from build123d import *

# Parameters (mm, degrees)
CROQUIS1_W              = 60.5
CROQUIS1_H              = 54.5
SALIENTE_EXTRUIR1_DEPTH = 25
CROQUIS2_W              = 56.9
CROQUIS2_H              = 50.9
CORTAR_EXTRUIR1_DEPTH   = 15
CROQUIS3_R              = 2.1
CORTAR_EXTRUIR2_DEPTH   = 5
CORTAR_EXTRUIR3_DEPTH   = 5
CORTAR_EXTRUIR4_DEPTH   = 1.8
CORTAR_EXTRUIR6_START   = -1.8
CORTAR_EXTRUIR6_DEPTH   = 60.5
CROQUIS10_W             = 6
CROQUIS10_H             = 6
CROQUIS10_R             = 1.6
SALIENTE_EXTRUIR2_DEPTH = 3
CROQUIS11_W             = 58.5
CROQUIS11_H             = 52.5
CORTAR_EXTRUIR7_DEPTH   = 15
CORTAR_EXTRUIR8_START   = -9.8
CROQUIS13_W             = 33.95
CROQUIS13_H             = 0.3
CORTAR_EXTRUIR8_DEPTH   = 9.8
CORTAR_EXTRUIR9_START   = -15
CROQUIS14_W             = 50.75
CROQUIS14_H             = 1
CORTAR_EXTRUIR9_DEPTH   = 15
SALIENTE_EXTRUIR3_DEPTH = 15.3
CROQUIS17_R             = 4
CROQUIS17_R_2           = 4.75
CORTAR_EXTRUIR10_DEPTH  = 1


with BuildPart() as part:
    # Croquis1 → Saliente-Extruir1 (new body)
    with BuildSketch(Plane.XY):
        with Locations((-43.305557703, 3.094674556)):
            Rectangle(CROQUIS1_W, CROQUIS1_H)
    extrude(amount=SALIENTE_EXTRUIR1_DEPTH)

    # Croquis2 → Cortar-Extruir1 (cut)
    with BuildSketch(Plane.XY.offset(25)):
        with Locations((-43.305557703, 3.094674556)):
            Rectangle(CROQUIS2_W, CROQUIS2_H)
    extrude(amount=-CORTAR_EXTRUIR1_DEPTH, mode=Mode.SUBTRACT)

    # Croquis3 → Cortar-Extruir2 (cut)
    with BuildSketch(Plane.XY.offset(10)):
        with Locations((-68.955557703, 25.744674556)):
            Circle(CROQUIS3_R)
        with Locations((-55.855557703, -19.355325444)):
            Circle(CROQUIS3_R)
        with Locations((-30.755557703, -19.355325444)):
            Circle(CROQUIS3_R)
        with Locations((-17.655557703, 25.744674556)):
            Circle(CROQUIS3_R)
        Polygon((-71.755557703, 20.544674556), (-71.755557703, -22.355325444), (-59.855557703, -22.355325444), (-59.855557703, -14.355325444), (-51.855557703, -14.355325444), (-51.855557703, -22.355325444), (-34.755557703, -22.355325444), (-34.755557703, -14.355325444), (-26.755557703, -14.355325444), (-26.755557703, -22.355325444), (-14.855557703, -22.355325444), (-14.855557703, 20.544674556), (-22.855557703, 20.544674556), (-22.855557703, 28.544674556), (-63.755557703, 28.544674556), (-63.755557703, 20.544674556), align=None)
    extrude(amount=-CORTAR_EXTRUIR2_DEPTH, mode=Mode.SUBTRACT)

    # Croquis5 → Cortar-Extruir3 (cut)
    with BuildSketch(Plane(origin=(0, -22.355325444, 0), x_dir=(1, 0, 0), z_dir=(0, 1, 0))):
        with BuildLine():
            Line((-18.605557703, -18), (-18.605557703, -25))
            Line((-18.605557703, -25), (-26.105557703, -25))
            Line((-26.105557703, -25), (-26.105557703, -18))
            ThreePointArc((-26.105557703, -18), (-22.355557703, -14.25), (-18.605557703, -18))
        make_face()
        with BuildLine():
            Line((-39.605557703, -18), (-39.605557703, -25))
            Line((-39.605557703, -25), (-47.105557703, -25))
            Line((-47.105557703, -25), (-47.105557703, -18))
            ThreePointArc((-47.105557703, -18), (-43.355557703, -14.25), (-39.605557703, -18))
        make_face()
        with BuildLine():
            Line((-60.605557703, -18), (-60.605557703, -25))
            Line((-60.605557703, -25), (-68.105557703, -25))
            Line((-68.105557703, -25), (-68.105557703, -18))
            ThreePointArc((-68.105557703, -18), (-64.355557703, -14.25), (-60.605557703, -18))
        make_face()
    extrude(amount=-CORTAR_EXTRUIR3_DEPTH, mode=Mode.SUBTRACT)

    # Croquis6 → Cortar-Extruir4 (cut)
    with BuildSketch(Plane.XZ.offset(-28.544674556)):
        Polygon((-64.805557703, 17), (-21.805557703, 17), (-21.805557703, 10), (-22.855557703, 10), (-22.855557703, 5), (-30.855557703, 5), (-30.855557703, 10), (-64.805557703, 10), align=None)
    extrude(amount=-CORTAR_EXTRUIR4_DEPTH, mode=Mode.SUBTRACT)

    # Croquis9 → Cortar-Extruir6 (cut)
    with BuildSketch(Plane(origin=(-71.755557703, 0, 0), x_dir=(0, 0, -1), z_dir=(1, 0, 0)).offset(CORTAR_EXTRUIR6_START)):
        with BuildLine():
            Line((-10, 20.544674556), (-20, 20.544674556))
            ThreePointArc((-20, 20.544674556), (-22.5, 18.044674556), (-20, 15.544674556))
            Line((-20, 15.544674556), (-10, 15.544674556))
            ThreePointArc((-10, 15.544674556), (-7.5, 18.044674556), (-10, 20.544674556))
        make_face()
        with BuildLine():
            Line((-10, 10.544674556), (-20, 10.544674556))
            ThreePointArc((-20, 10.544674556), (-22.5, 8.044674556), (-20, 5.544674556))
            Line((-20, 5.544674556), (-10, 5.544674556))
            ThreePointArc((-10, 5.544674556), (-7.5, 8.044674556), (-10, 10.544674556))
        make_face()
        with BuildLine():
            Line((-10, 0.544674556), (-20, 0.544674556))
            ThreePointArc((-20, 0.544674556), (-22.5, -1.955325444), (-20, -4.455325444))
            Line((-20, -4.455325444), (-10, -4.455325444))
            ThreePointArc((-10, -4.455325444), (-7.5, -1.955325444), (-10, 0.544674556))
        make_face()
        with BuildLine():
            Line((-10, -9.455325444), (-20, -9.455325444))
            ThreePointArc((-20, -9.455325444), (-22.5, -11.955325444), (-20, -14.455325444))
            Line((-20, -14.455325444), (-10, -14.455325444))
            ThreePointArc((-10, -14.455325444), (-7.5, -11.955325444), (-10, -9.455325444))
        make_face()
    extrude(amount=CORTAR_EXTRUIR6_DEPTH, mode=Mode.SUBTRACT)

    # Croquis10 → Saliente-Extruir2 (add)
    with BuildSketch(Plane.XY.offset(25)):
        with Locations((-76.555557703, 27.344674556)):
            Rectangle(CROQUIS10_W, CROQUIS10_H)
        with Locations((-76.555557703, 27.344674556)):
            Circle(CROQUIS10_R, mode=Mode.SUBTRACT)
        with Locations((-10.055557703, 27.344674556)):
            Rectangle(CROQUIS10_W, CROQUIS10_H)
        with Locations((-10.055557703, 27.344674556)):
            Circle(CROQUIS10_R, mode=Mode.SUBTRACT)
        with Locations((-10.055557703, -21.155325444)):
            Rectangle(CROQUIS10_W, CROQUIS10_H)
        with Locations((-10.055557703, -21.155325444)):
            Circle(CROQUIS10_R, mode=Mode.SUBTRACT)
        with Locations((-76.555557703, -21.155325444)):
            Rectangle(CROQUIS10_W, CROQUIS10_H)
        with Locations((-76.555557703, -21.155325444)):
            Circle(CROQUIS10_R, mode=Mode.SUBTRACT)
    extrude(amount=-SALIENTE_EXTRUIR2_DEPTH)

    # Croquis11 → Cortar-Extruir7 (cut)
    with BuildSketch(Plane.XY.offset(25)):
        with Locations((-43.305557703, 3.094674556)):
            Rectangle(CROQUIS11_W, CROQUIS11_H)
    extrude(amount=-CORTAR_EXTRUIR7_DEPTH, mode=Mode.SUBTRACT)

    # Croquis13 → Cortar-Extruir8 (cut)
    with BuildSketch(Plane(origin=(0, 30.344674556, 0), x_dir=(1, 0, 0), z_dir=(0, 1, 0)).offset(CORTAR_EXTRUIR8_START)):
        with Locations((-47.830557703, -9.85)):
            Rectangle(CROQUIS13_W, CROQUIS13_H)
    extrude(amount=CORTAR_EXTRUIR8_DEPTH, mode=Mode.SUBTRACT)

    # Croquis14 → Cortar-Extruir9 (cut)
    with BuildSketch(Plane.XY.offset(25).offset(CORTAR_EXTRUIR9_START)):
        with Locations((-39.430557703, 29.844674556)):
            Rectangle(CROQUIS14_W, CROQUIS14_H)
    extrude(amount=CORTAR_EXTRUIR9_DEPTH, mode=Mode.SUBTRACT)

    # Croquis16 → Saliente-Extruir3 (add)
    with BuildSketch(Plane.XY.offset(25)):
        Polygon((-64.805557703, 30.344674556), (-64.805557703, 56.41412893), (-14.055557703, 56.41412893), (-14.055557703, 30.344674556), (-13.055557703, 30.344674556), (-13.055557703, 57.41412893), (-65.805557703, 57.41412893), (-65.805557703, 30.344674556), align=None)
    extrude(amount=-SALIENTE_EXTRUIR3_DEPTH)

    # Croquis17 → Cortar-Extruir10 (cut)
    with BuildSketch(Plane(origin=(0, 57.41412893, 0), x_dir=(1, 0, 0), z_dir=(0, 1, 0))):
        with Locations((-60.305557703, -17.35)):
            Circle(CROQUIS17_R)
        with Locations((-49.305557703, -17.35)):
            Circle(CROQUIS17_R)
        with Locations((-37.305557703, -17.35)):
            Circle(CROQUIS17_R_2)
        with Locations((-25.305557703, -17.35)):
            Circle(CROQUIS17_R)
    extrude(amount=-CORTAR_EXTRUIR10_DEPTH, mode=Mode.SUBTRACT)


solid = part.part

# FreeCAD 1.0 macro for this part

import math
import FreeCAD as App
import Part
import Sketcher

doc = App.newDocument("Part")
body = doc.addObject("PartDesign::Body", "Body")

sketch1 = body.newObject("Sketcher::SketchObject", "Sketch")
sketch1.AttachmentSupport = (doc.getObject("XY_Plane"), [""])
sketch1.MapMode = "FlatFace"
sketch1.addGeometry([
    Part.LineSegment(App.Vector(-74, 30, 0), App.Vector(-74, -24, 0)),
    Part.LineSegment(App.Vector(-74, -24, 0), App.Vector(-13, -24, 0)),
    Part.LineSegment(App.Vector(-13, -24, 0), App.Vector(-13, 30, 0)),
    Part.LineSegment(App.Vector(-13, 30, 0), App.Vector(-74, 30, 0)),
], False)
sketch1.addConstraint([
    Sketcher.Constraint("Coincident", 0, 2, 1, 1),
    Sketcher.Constraint("Coincident", 1, 2, 2, 1),
    Sketcher.Constraint("Coincident", 2, 2, 3, 1),
    Sketcher.Constraint("Coincident", 3, 2, 0, 1),
    Sketcher.Constraint("Vertical", 0),
    Sketcher.Constraint("Horizontal", 1),
    Sketcher.Constraint("Vertical", 2),
    Sketcher.Constraint("Horizontal", 3),
    Sketcher.Constraint("DistanceX", 1, 1, 1, 2, 60.5),
    Sketcher.Constraint("DistanceY", 0, 2, 0, 1, 54.5),
    Sketcher.Constraint("DistanceX", 0, 2, -1, 1, 73.555558),
    Sketcher.Constraint("DistanceY", 0, 2, -1, 1, 24.155325),
])
pad1 = body.newObject("PartDesign::Pad", "Pad")
pad1.Profile = sketch1
pad1.Length = 25

sketch2 = body.newObject("Sketcher::SketchObject", "Sketch001")
sketch2.AttachmentSupport = (doc.getObject("XY_Plane"), [""])
sketch2.MapMode = "FlatFace"
sketch2.AttachmentOffset = App.Placement(App.Vector(0, 0, 25), App.Rotation())
sketch2.addGeometry([
    Part.LineSegment(App.Vector(-72, 29, 0), App.Vector(-72, -22, 0)),
    Part.LineSegment(App.Vector(-72, -22, 0), App.Vector(-15, -22, 0)),
    Part.LineSegment(App.Vector(-15, -22, 0), App.Vector(-15, 29, 0)),
    Part.LineSegment(App.Vector(-15, 29, 0), App.Vector(-72, 29, 0)),
], False)
sketch2.addConstraint([
    Sketcher.Constraint("Coincident", 0, 2, 1, 1),
    Sketcher.Constraint("Coincident", 1, 2, 2, 1),
    Sketcher.Constraint("Coincident", 2, 2, 3, 1),
    Sketcher.Constraint("Coincident", 3, 2, 0, 1),
    Sketcher.Constraint("Vertical", 0),
    Sketcher.Constraint("Horizontal", 1),
    Sketcher.Constraint("Vertical", 2),
    Sketcher.Constraint("Horizontal", 3),
    Sketcher.Constraint("DistanceX", 1, 1, 1, 2, 56.9),
    Sketcher.Constraint("DistanceY", 0, 2, 0, 1, 50.9),
    Sketcher.Constraint("DistanceX", 0, 2, -1, 1, 71.755558),
    Sketcher.Constraint("DistanceY", 0, 2, -1, 1, 22.355325),
])
pocket1 = body.newObject("PartDesign::Pocket", "Pocket")
pocket1.Profile = sketch2
pocket1.Length = 15

sketch3 = body.newObject("Sketcher::SketchObject", "Sketch002")
sketch3.AttachmentSupport = (doc.getObject("XY_Plane"), [""])
sketch3.MapMode = "FlatFace"
sketch3.AttachmentOffset = App.Placement(App.Vector(0, 0, 10), App.Rotation())
sketch3.addGeometry([
    Part.Circle(App.Vector(-69, 25.7, 0), App.Vector(0, 0, 1), 2.1),
    Part.Circle(App.Vector(-55.9, -19.4, 0), App.Vector(0, 0, 1), 2.1),
    Part.Circle(App.Vector(-30.8, -19.4, 0), App.Vector(0, 0, 1), 2.1),
    Part.Circle(App.Vector(-17.7, 25.7, 0), App.Vector(0, 0, 1), 2.1),
    Part.LineSegment(App.Vector(-71.8, 20.5, 0), App.Vector(-71.8, -22.4, 0)),
    Part.LineSegment(App.Vector(-71.8, -22.4, 0), App.Vector(-59.9, -22.4, 0)),
    Part.LineSegment(App.Vector(-59.9, -22.4, 0), App.Vector(-59.9, -14.4, 0)),
    Part.LineSegment(App.Vector(-59.9, -14.4, 0), App.Vector(-51.9, -14.4, 0)),
    Part.LineSegment(App.Vector(-51.9, -14.4, 0), App.Vector(-51.9, -22.4, 0)),
    Part.LineSegment(App.Vector(-51.9, -22.4, 0), App.Vector(-34.8, -22.4, 0)),
    Part.LineSegment(App.Vector(-34.8, -22.4, 0), App.Vector(-34.8, -14.4, 0)),
    Part.LineSegment(App.Vector(-34.8, -14.4, 0), App.Vector(-26.8, -14.4, 0)),
    Part.LineSegment(App.Vector(-26.8, -14.4, 0), App.Vector(-26.8, -22.4, 0)),
    Part.LineSegment(App.Vector(-26.8, -22.4, 0), App.Vector(-14.9, -22.4, 0)),
    Part.LineSegment(App.Vector(-14.9, -22.4, 0), App.Vector(-14.9, 20.5, 0)),
    Part.LineSegment(App.Vector(-14.9, 20.5, 0), App.Vector(-22.9, 20.5, 0)),
    Part.LineSegment(App.Vector(-22.9, 20.5, 0), App.Vector(-22.9, 28.5, 0)),
    Part.LineSegment(App.Vector(-22.9, 28.5, 0), App.Vector(-63.8, 28.5, 0)),
    Part.LineSegment(App.Vector(-63.8, 28.5, 0), App.Vector(-63.8, 20.5, 0)),
    Part.LineSegment(App.Vector(-63.8, 20.5, 0), App.Vector(-71.8, 20.5, 0)),
], False)
sketch3.addConstraint([
    Sketcher.Constraint("Coincident", 4, 2, 5, 1),
    Sketcher.Constraint("Coincident", 5, 2, 6, 1),
    Sketcher.Constraint("Coincident", 6, 2, 7, 1),
    Sketcher.Constraint("Coincident", 7, 2, 8, 1),
    Sketcher.Constraint("Coincident", 8, 2, 9, 1),
    Sketcher.Constraint("Coincident", 9, 2, 10, 1),
    Sketcher.Constraint("Coincident", 10, 2, 11, 1),
    Sketcher.Constraint("Coincident", 11, 2, 12, 1),
    Sketcher.Constraint("Coincident", 12, 2, 13, 1),
    Sketcher.Constraint("Coincident", 13, 2, 14, 1),
    Sketcher.Constraint("Coincident", 14, 2, 15, 1),
    Sketcher.Constraint("Coincident", 15, 2, 16, 1),
    Sketcher.Constraint("Coincident", 16, 2, 17, 1),
    Sketcher.Constraint("Coincident", 17, 2, 18, 1),
    Sketcher.Constraint("Coincident", 18, 2, 19, 1),
    Sketcher.Constraint("Coincident", 19, 2, 4, 1),
    Sketcher.Constraint("Vertical", 4),
    Sketcher.Constraint("Horizontal", 5),
    Sketcher.Constraint("Vertical", 6),
    Sketcher.Constraint("Horizontal", 7),
    Sketcher.Constraint("Vertical", 8),
    Sketcher.Constraint("Horizontal", 9),
    Sketcher.Constraint("Vertical", 10),
    Sketcher.Constraint("Horizontal", 11),
    Sketcher.Constraint("Vertical", 12),
    Sketcher.Constraint("Horizontal", 13),
    Sketcher.Constraint("Vertical", 14),
    Sketcher.Constraint("Horizontal", 15),
    Sketcher.Constraint("Vertical", 16),
    Sketcher.Constraint("Horizontal", 17),
    Sketcher.Constraint("Vertical", 18),
    Sketcher.Constraint("Horizontal", 19),
    Sketcher.Constraint("Equal", 0, 1),
    Sketcher.Constraint("Equal", 1, 2),
    Sketcher.Constraint("Equal", 2, 3),
    Sketcher.Constraint("Horizontal", 1, 3, 2, 3),
    Sketcher.Constraint("Horizontal", 0, 3, 3, 3),
    Sketcher.Constraint("Horizontal", 5, 2, 8, 2),
    Sketcher.Constraint("Horizontal", 7, 2, 10, 2),
    Sketcher.Constraint("Horizontal", 9, 2, 12, 2),
    Sketcher.Constraint("Horizontal", 15, 2, 18, 2),
    Sketcher.Constraint("Equal", 7, 11),
    Sketcher.Constraint("Equal", 5, 13),
    Sketcher.Constraint("Equal", 11, 15),
    Sketcher.Constraint("Equal", 15, 19),
    Sketcher.Constraint("Equal", 19, 6),
    Sketcher.Constraint("Equal", 12, 16),
    Sketcher.Constraint("Diameter", 0, 4.2),
    Sketcher.Constraint("DistanceX", 7, 1, 7, 2, 8.0),
    Sketcher.Constraint("DistanceX", 5, 1, 5, 2, 11.9),
    Sketcher.Constraint("DistanceX", 9, 1, 9, 2, 17.1),
    Sketcher.Constraint("DistanceY", 4, 2, 4, 1, 42.9),
    Sketcher.Constraint("DistanceY", 4, 2, 1, 3, 3.0),
    Sketcher.Constraint("DistanceX", 4, 2, 2, 3, 41.0),
    Sketcher.Constraint("DistanceX", 5, 2, 1, 3, 4.0),
    Sketcher.Constraint("DistanceX", 0, 3, 1, 3, 13.1),
    Sketcher.Constraint("DistanceY", 1, 3, 0, 3, 45.1),
    Sketcher.Constraint("DistanceX", 2, 3, 3, 3, 13.1),
    Sketcher.Constraint("DistanceX", 0, 3, -1, 1, 68.955558),
    Sketcher.Constraint("DistanceY", -1, 1, 0, 3, 25.744675),
])
pocket2 = body.newObject("PartDesign::Pocket", "Pocket001")
pocket2.Profile = sketch3
pocket2.Length = 5

sketch4 = body.newObject("Sketcher::SketchObject", "Sketch003")
sketch4.AttachmentSupport = (doc.getObject("XZ_Plane"), [""])
sketch4.MapMode = "FlatFace"
sketch4.AttachmentOffset = App.Placement(App.Vector(0, 0, 22.355325), App.Rotation())
sketch4.addGeometry([
    Part.LineSegment(App.Vector(-18.6, 25, 0), App.Vector(-18.6, 18, 0)),
    Part.ArcOfCircle(Part.Circle(App.Vector(-22.4, 18, 0), App.Vector(0, 0, 1), 3.8), math.radians(180), math.radians(360)),
    Part.LineSegment(App.Vector(-26.1, 18, 0), App.Vector(-26.1, 25, 0)),
    Part.LineSegment(App.Vector(-26.1, 25, 0), App.Vector(-18.6, 25, 0)),
    Part.LineSegment(App.Vector(-39.6, 25, 0), App.Vector(-39.6, 18, 0)),
    Part.ArcOfCircle(Part.Circle(App.Vector(-43.4, 18, 0), App.Vector(0, 0, 1), 3.8), math.radians(180), math.radians(360)),
    Part.LineSegment(App.Vector(-47.1, 18, 0), App.Vector(-47.1, 25, 0)),
    Part.LineSegment(App.Vector(-47.1, 25, 0), App.Vector(-39.6, 25, 0)),
    Part.LineSegment(App.Vector(-60.6, 25, 0), App.Vector(-60.6, 18, 0)),
    Part.ArcOfCircle(Part.Circle(App.Vector(-64.4, 18, 0), App.Vector(0, 0, 1), 3.8), math.radians(180), math.radians(360)),
    Part.LineSegment(App.Vector(-68.1, 18, 0), App.Vector(-68.1, 25, 0)),
    Part.LineSegment(App.Vector(-68.1, 25, 0), App.Vector(-60.6, 25, 0)),
], False)
sketch4.addConstraint([
    Sketcher.Constraint("Tangent", 0, 2, 1, 2),
    Sketcher.Constraint("Tangent", 1, 1, 2, 1),
    Sketcher.Constraint("Coincident", 2, 2, 3, 1),
    Sketcher.Constraint("Coincident", 3, 2, 0, 1),
    Sketcher.Constraint("Tangent", 4, 2, 5, 2),
    Sketcher.Constraint("Tangent", 5, 1, 6, 1),
    Sketcher.Constraint("Coincident", 6, 2, 7, 1),
    Sketcher.Constraint("Coincident", 7, 2, 4, 1),
    Sketcher.Constraint("Tangent", 8, 2, 9, 2),
    Sketcher.Constraint("Tangent", 9, 1, 10, 1),
    Sketcher.Constraint("Coincident", 10, 2, 11, 1),
    Sketcher.Constraint("Coincident", 11, 2, 8, 1),
    Sketcher.Constraint("Vertical", 0),
    Sketcher.Constraint("Vertical", 2),
    Sketcher.Constraint("Horizontal", 3),
    Sketcher.Constraint("Vertical", 4),
    Sketcher.Constraint("Vertical", 6),
    Sketcher.Constraint("Horizontal", 7),
    Sketcher.Constraint("Vertical", 8),
    Sketcher.Constraint("Vertical", 10),
    Sketcher.Constraint("Horizontal", 11),
    Sketcher.Constraint("Equal", 1, 5),
    Sketcher.Constraint("Equal", 5, 9),
    Sketcher.Constraint("Horizontal", 1, 3, 5, 3),
    Sketcher.Constraint("Horizontal", 5, 3, 9, 3),
    Sketcher.Constraint("Horizontal", 3, 2, 6, 2),
    Sketcher.Constraint("Horizontal", 7, 2, 10, 2),
    Sketcher.Constraint("DistanceY", 0, 2, 0, 1, 7.0),
    Sketcher.Constraint("Radius", 1, 3.75),
    Sketcher.Constraint("DistanceY", -1, 1, 1, 3, 18.0),
    Sketcher.Constraint("DistanceX", 5, 3, 1, 3, 21.0),
    Sketcher.Constraint("DistanceX", 9, 3, 5, 3, 21.0),
    Sketcher.Constraint("DistanceX", 1, 3, -1, 1, 22.355558),
])
pocket3 = body.newObject("PartDesign::Pocket", "Pocket002")
pocket3.Profile = sketch4
pocket3.Length = 5
pocket3.Reversed = True

sketch5 = body.newObject("Sketcher::SketchObject", "Sketch004")
sketch5.AttachmentSupport = (doc.getObject("XZ_Plane"), [""])
sketch5.MapMode = "FlatFace"
sketch5.AttachmentOffset = App.Placement(App.Vector(0, 0, -28.544675), App.Rotation())
sketch5.addGeometry([
    Part.LineSegment(App.Vector(-21.8, 17, 0), App.Vector(-64.8, 17, 0)),
    Part.LineSegment(App.Vector(-64.8, 17, 0), App.Vector(-64.8, 10, 0)),
    Part.LineSegment(App.Vector(-64.8, 10, 0), App.Vector(-30.9, 10, 0)),
    Part.LineSegment(App.Vector(-30.9, 10, 0), App.Vector(-30.9, 5, 0)),
    Part.LineSegment(App.Vector(-30.9, 5, 0), App.Vector(-22.9, 5, 0)),
    Part.LineSegment(App.Vector(-22.9, 5, 0), App.Vector(-22.9, 10, 0)),
    Part.LineSegment(App.Vector(-22.9, 10, 0), App.Vector(-21.8, 10, 0)),
    Part.LineSegment(App.Vector(-21.8, 10, 0), App.Vector(-21.8, 17, 0)),
], False)
sketch5.addConstraint([
    Sketcher.Constraint("Coincident", 0, 2, 1, 1),
    Sketcher.Constraint("Coincident", 1, 2, 2, 1),
    Sketcher.Constraint("Coincident", 2, 2, 3, 1),
    Sketcher.Constraint("Coincident", 3, 2, 4, 1),
    Sketcher.Constraint("Coincident", 4, 2, 5, 1),
    Sketcher.Constraint("Coincident", 5, 2, 6, 1),
    Sketcher.Constraint("Coincident", 6, 2, 7, 1),
    Sketcher.Constraint("Coincident", 7, 2, 0, 1),
    Sketcher.Constraint("Horizontal", 0),
    Sketcher.Constraint("Vertical", 1),
    Sketcher.Constraint("Horizontal", 2),
    Sketcher.Constraint("Vertical", 3),
    Sketcher.Constraint("Horizontal", 4),
    Sketcher.Constraint("Vertical", 5),
    Sketcher.Constraint("Horizontal", 6),
    Sketcher.Constraint("Vertical", 7),
    Sketcher.Constraint("Horizontal", 2, 2, 5, 2),
    Sketcher.Constraint("DistanceX", 0, 2, 0, 1, 43.0),
    Sketcher.Constraint("DistanceX", 4, 1, 4, 2, 8.0),
    Sketcher.Constraint("DistanceY", 1, 2, 1, 1, 7.0),
    Sketcher.Constraint("DistanceY", 3, 2, 3, 1, 5.0),
    Sketcher.Constraint("DistanceY", -1, 1, 0, 2, 17.0),
    Sketcher.Constraint("DistanceX", 2, 1, 2, 2, 33.95),
    Sketcher.Constraint("DistanceX", 0, 2, -1, 1, 64.805558),
])
pocket4 = body.newObject("PartDesign::Pocket", "Pocket003")
pocket4.Profile = sketch5
pocket4.Length = 1.8

sketch6 = body.newObject("Sketcher::SketchObject", "Sketch005")
sketch6.AttachmentSupport = (doc.getObject("YZ_Plane"), [""])
sketch6.MapMode = "FlatFace"
sketch6.AttachmentOffset = App.Placement(App.Vector(0, 0, -73.555558), App.Rotation())
sketch6.addGeometry([
    Part.LineSegment(App.Vector(20.5, 10, 0), App.Vector(20.5, 20, 0)),
    Part.ArcOfCircle(Part.Circle(App.Vector(18, 20, 0), App.Vector(0, 0, 1), 2.5), math.radians(0), math.radians(180)),
    Part.LineSegment(App.Vector(15.5, 20, 0), App.Vector(15.5, 10, 0)),
    Part.ArcOfCircle(Part.Circle(App.Vector(18, 10, 0), App.Vector(0, 0, 1), 2.5), math.radians(180), math.radians(360)),
    Part.LineSegment(App.Vector(10.5, 10, 0), App.Vector(10.5, 20, 0)),
    Part.ArcOfCircle(Part.Circle(App.Vector(8, 20, 0), App.Vector(0, 0, 1), 2.5), math.radians(0), math.radians(180)),
    Part.LineSegment(App.Vector(5.5, 20, 0), App.Vector(5.5, 10, 0)),
    Part.ArcOfCircle(Part.Circle(App.Vector(8, 10, 0), App.Vector(0, 0, 1), 2.5), math.radians(180), math.radians(360)),
    Part.LineSegment(App.Vector(0.5, 10, 0), App.Vector(0.5, 20, 0)),
    Part.ArcOfCircle(Part.Circle(App.Vector(-2, 20, 0), App.Vector(0, 0, 1), 2.5), math.radians(0), math.radians(180)),
    Part.LineSegment(App.Vector(-4.5, 20, 0), App.Vector(-4.5, 10, 0)),
    Part.ArcOfCircle(Part.Circle(App.Vector(-2, 10, 0), App.Vector(0, 0, 1), 2.5), math.radians(180), math.radians(360)),
    Part.LineSegment(App.Vector(-9.5, 10, 0), App.Vector(-9.5, 20, 0)),
    Part.ArcOfCircle(Part.Circle(App.Vector(-12, 20, 0), App.Vector(0, 0, 1), 2.5), math.radians(0), math.radians(180)),
    Part.LineSegment(App.Vector(-14.5, 20, 0), App.Vector(-14.5, 10, 0)),
    Part.ArcOfCircle(Part.Circle(App.Vector(-12, 10, 0), App.Vector(0, 0, 1), 2.5), math.radians(180), math.radians(360)),
], False)
sketch6.addConstraint([
    Sketcher.Constraint("Tangent", 0, 2, 1, 1),
    Sketcher.Constraint("Tangent", 1, 2, 2, 1),
    Sketcher.Constraint("Tangent", 2, 2, 3, 1),
    Sketcher.Constraint("Tangent", 3, 2, 0, 1),
    Sketcher.Constraint("Tangent", 4, 2, 5, 1),
    Sketcher.Constraint("Tangent", 5, 2, 6, 1),
    Sketcher.Constraint("Tangent", 6, 2, 7, 1),
    Sketcher.Constraint("Tangent", 7, 2, 4, 1),
    Sketcher.Constraint("Tangent", 8, 2, 9, 1),
    Sketcher.Constraint("Tangent", 9, 2, 10, 1),
    Sketcher.Constraint("Tangent", 10, 2, 11, 1),
    Sketcher.Constraint("Tangent", 11, 2, 8, 1),
    Sketcher.Constraint("Tangent", 12, 2, 13, 1),
    Sketcher.Constraint("Tangent", 13, 2, 14, 1),
    Sketcher.Constraint("Tangent", 14, 2, 15, 1),
    Sketcher.Constraint("Tangent", 15, 2, 12, 1),
    Sketcher.Constraint("Vertical", 0),
    Sketcher.Constraint("Vertical", 2),
    Sketcher.Constraint("Vertical", 4),
    Sketcher.Constraint("Vertical", 6),
    Sketcher.Constraint("Vertical", 8),
    Sketcher.Constraint("Vertical", 10),
    Sketcher.Constraint("Vertical", 12),
    Sketcher.Constraint("Vertical", 14),
    Sketcher.Constraint("Equal", 3, 5),
    Sketcher.Constraint("Equal", 7, 9),
    Sketcher.Constraint("Equal", 11, 13),
    Sketcher.Constraint("Horizontal", 1, 3, 5, 3),
    Sketcher.Constraint("Horizontal", 3, 3, 7, 3),
    Sketcher.Constraint("Horizontal", 5, 3, 9, 3),
    Sketcher.Constraint("Horizontal", 7, 3, 11, 3),
    Sketcher.Constraint("Horizontal", 9, 3, 13, 3),
    Sketcher.Constraint("Horizontal", 11, 3, 15, 3),
    Sketcher.Constraint("Radius", 1, 2.5),
    Sketcher.Constraint("DistanceY", 0, 1, 0, 2, 10.0),
    Sketcher.Constraint("DistanceY", -1, 1, 1, 3, 20.0),
    Sketcher.Constraint("DistanceX", 5, 3, 1, 3, 10.0),
    Sketcher.Constraint("DistanceX", 9, 3, 5, 3, 10.0),
    Sketcher.Constraint("DistanceX", 13, 3, 9, 3, 10.0),
    Sketcher.Constraint("DistanceX", -1, 1, 1, 3, 18.044675),
])
pocket5 = body.newObject("PartDesign::Pocket", "Pocket004")
pocket5.Profile = sketch6
pocket5.Length = 60.5
pocket5.Reversed = True

sketch7 = body.newObject("Sketcher::SketchObject", "Sketch006")
sketch7.AttachmentSupport = (doc.getObject("XY_Plane"), [""])
sketch7.MapMode = "FlatFace"
sketch7.AttachmentOffset = App.Placement(App.Vector(0, 0, 25), App.Rotation())
sketch7.addGeometry([
    Part.LineSegment(App.Vector(-79.6, 30.3, 0), App.Vector(-79.6, 24.3, 0)),
    Part.LineSegment(App.Vector(-79.6, 24.3, 0), App.Vector(-73.6, 24.3, 0)),
    Part.LineSegment(App.Vector(-73.6, 24.3, 0), App.Vector(-73.6, 30.3, 0)),
    Part.LineSegment(App.Vector(-73.6, 30.3, 0), App.Vector(-79.6, 30.3, 0)),
    Part.Circle(App.Vector(-76.6, 27.3, 0), App.Vector(0, 0, 1), 1.6),
    Part.LineSegment(App.Vector(-13.1, 30.3, 0), App.Vector(-13.1, 24.3, 0)),
    Part.LineSegment(App.Vector(-13.1, 24.3, 0), App.Vector(-7.1, 24.3, 0)),
    Part.LineSegment(App.Vector(-7.1, 24.3, 0), App.Vector(-7.1, 30.3, 0)),
    Part.LineSegment(App.Vector(-7.1, 30.3, 0), App.Vector(-13.1, 30.3, 0)),
    Part.Circle(App.Vector(-10.1, 27.3, 0), App.Vector(0, 0, 1), 1.6),
    Part.LineSegment(App.Vector(-13.1, -18.2, 0), App.Vector(-13.1, -24.2, 0)),
    Part.LineSegment(App.Vector(-13.1, -24.2, 0), App.Vector(-7.1, -24.2, 0)),
    Part.LineSegment(App.Vector(-7.1, -24.2, 0), App.Vector(-7.1, -18.2, 0)),
    Part.LineSegment(App.Vector(-7.1, -18.2, 0), App.Vector(-13.1, -18.2, 0)),
    Part.Circle(App.Vector(-10.1, -21.2, 0), App.Vector(0, 0, 1), 1.6),
    Part.LineSegment(App.Vector(-79.6, -18.2, 0), App.Vector(-79.6, -24.2, 0)),
    Part.LineSegment(App.Vector(-79.6, -24.2, 0), App.Vector(-73.6, -24.2, 0)),
    Part.LineSegment(App.Vector(-73.6, -24.2, 0), App.Vector(-73.6, -18.2, 0)),
    Part.LineSegment(App.Vector(-73.6, -18.2, 0), App.Vector(-79.6, -18.2, 0)),
    Part.Circle(App.Vector(-76.6, -21.2, 0), App.Vector(0, 0, 1), 1.6),
], False)
sketch7.addConstraint([
    Sketcher.Constraint("Coincident", 0, 2, 1, 1),
    Sketcher.Constraint("Coincident", 1, 2, 2, 1),
    Sketcher.Constraint("Coincident", 2, 2, 3, 1),
    Sketcher.Constraint("Coincident", 3, 2, 0, 1),
    Sketcher.Constraint("Coincident", 5, 2, 6, 1),
    Sketcher.Constraint("Coincident", 6, 2, 7, 1),
    Sketcher.Constraint("Coincident", 7, 2, 8, 1),
    Sketcher.Constraint("Coincident", 8, 2, 5, 1),
    Sketcher.Constraint("Coincident", 10, 2, 11, 1),
    Sketcher.Constraint("Coincident", 11, 2, 12, 1),
    Sketcher.Constraint("Coincident", 12, 2, 13, 1),
    Sketcher.Constraint("Coincident", 13, 2, 10, 1),
    Sketcher.Constraint("Coincident", 15, 2, 16, 1),
    Sketcher.Constraint("Coincident", 16, 2, 17, 1),
    Sketcher.Constraint("Coincident", 17, 2, 18, 1),
    Sketcher.Constraint("Coincident", 18, 2, 15, 1),
    Sketcher.Constraint("Vertical", 0),
    Sketcher.Constraint("Horizontal", 1),
    Sketcher.Constraint("Vertical", 2),
    Sketcher.Constraint("Horizontal", 3),
    Sketcher.Constraint("Vertical", 5),
    Sketcher.Constraint("Horizontal", 6),
    Sketcher.Constraint("Vertical", 7),
    Sketcher.Constraint("Horizontal", 8),
    Sketcher.Constraint("Vertical", 10),
    Sketcher.Constraint("Horizontal", 11),
    Sketcher.Constraint("Vertical", 12),
    Sketcher.Constraint("Horizontal", 13),
    Sketcher.Constraint("Vertical", 15),
    Sketcher.Constraint("Horizontal", 16),
    Sketcher.Constraint("Vertical", 17),
    Sketcher.Constraint("Horizontal", 18),
    Sketcher.Constraint("Equal", 4, 9),
    Sketcher.Constraint("Equal", 9, 14),
    Sketcher.Constraint("Equal", 14, 19),
    Sketcher.Constraint("Horizontal", 4, 3, 9, 3),
    Sketcher.Constraint("Horizontal", 14, 3, 19, 3),
    Sketcher.Constraint("Horizontal", 1, 2, 5, 2),
    Sketcher.Constraint("Horizontal", 3, 2, 7, 2),
    Sketcher.Constraint("Horizontal", 11, 2, 15, 2),
    Sketcher.Constraint("Horizontal", 13, 2, 17, 2),
    Sketcher.Constraint("Vertical", 9, 3, 14, 3),
    Sketcher.Constraint("Vertical", 4, 3, 19, 3),
    Sketcher.Constraint("Vertical", 8, 2, 10, 2),
    Sketcher.Constraint("Vertical", 7, 2, 11, 2),
    Sketcher.Constraint("Vertical", 3, 2, 15, 2),
    Sketcher.Constraint("Vertical", 2, 2, 16, 2),
    Sketcher.Constraint("Equal", 3, 6),
    Sketcher.Constraint("Equal", 18, 0),
    Sketcher.Constraint("Equal", 7, 10),
    Sketcher.Constraint("Diameter", 4, 3.2),
    Sketcher.Constraint("DistanceX", 1, 1, 1, 2, 6.0),
    Sketcher.Constraint("DistanceX", 0, 2, 4, 3, 3.0),
    Sketcher.Constraint("DistanceY", 0, 2, 4, 3, 3.0),
    Sketcher.Constraint("DistanceX", 5, 2, 9, 3, 3.0),
    Sketcher.Constraint("DistanceY", 10, 2, 14, 3, 3.0),
    Sketcher.Constraint("DistanceX", 4, 3, 9, 3, 66.5),
    Sketcher.Constraint("DistanceY", 14, 3, 9, 3, 48.5),
    Sketcher.Constraint("DistanceX", 4, 3, -1, 1, 76.555558),
    Sketcher.Constraint("DistanceY", -1, 1, 4, 3, 27.344675),
])
pad2 = body.newObject("PartDesign::Pad", "Pad001")
pad2.Profile = sketch7
pad2.Length = 3
pad2.Reversed = True

sketch8 = body.newObject("Sketcher::SketchObject", "Sketch007")
sketch8.AttachmentSupport = (doc.getObject("XY_Plane"), [""])
sketch8.MapMode = "FlatFace"
sketch8.AttachmentOffset = App.Placement(App.Vector(0, 0, 25), App.Rotation())
sketch8.addGeometry([
    Part.LineSegment(App.Vector(-73, 29, 0), App.Vector(-73, -23, 0)),
    Part.LineSegment(App.Vector(-73, -23, 0), App.Vector(-14, -23, 0)),
    Part.LineSegment(App.Vector(-14, -23, 0), App.Vector(-14, 29, 0)),
    Part.LineSegment(App.Vector(-14, 29, 0), App.Vector(-73, 29, 0)),
], False)
sketch8.addConstraint([
    Sketcher.Constraint("Coincident", 0, 2, 1, 1),
    Sketcher.Constraint("Coincident", 1, 2, 2, 1),
    Sketcher.Constraint("Coincident", 2, 2, 3, 1),
    Sketcher.Constraint("Coincident", 3, 2, 0, 1),
    Sketcher.Constraint("Vertical", 0),
    Sketcher.Constraint("Horizontal", 1),
    Sketcher.Constraint("Vertical", 2),
    Sketcher.Constraint("Horizontal", 3),
    Sketcher.Constraint("DistanceX", 1, 1, 1, 2, 58.5),
    Sketcher.Constraint("DistanceY", 0, 2, 0, 1, 52.5),
    Sketcher.Constraint("DistanceX", 0, 2, -1, 1, 72.555558),
    Sketcher.Constraint("DistanceY", 0, 2, -1, 1, 23.155325),
])
pocket6 = body.newObject("PartDesign::Pocket", "Pocket005")
pocket6.Profile = sketch8
pocket6.Length = 15

sketch9 = body.newObject("Sketcher::SketchObject", "Sketch008")
sketch9.AttachmentSupport = (doc.getObject("XZ_Plane"), [""])
sketch9.MapMode = "FlatFace"
sketch9.AttachmentOffset = App.Placement(App.Vector(0, 0, -20.544675), App.Rotation())
sketch9.addGeometry([
    Part.LineSegment(App.Vector(-64.81, 9.7, 0), App.Vector(-64.81, 10, 0)),
    Part.LineSegment(App.Vector(-64.81, 10, 0), App.Vector(-30.86, 10, 0)),
    Part.LineSegment(App.Vector(-30.86, 10, 0), App.Vector(-30.86, 9.7, 0)),
    Part.LineSegment(App.Vector(-30.86, 9.7, 0), App.Vector(-64.81, 9.7, 0)),
], False)
sketch9.addConstraint([
    Sketcher.Constraint("Coincident", 0, 2, 1, 1),
    Sketcher.Constraint("Coincident", 1, 2, 2, 1),
    Sketcher.Constraint("Coincident", 2, 2, 3, 1),
    Sketcher.Constraint("Coincident", 3, 2, 0, 1),
    Sketcher.Constraint("Vertical", 0),
    Sketcher.Constraint("Horizontal", 1),
    Sketcher.Constraint("Vertical", 2),
    Sketcher.Constraint("Horizontal", 3),
    Sketcher.Constraint("DistanceY", 0, 1, 0, 2, 0.3),
    Sketcher.Constraint("DistanceY", -1, 1, 0, 2, 10.0),
    Sketcher.Constraint("DistanceX", 1, 1, 1, 2, 33.95),
    Sketcher.Constraint("DistanceX", 0, 2, -1, 1, 64.805558),
])
pocket7 = body.newObject("PartDesign::Pocket", "Pocket006")
pocket7.Profile = sketch9
pocket7.Length = 9.8

sketch10 = body.newObject("Sketcher::SketchObject", "Sketch009")
sketch10.AttachmentSupport = (doc.getObject("XY_Plane"), [""])
sketch10.MapMode = "FlatFace"
sketch10.AttachmentOffset = App.Placement(App.Vector(0, 0, 10), App.Rotation())
sketch10.addGeometry([
    Part.LineSegment(App.Vector(-64.8, 30.3, 0), App.Vector(-64.8, 29.3, 0)),
    Part.LineSegment(App.Vector(-64.8, 29.3, 0), App.Vector(-14.1, 29.3, 0)),
    Part.LineSegment(App.Vector(-14.1, 29.3, 0), App.Vector(-14.1, 30.3, 0)),
    Part.LineSegment(App.Vector(-14.1, 30.3, 0), App.Vector(-64.8, 30.3, 0)),
], False)
sketch10.addConstraint([
    Sketcher.Constraint("Coincident", 0, 2, 1, 1),
    Sketcher.Constraint("Coincident", 1, 2, 2, 1),
    Sketcher.Constraint("Coincident", 2, 2, 3, 1),
    Sketcher.Constraint("Coincident", 3, 2, 0, 1),
    Sketcher.Constraint("Vertical", 0),
    Sketcher.Constraint("Horizontal", 1),
    Sketcher.Constraint("Vertical", 2),
    Sketcher.Constraint("Horizontal", 3),
    Sketcher.Constraint("DistanceY", 0, 2, 0, 1, 1.0),
    Sketcher.Constraint("DistanceX", 1, 1, 1, 2, 50.75),
    Sketcher.Constraint("DistanceX", 0, 2, -1, 1, 64.805558),
    Sketcher.Constraint("DistanceY", -1, 1, 0, 2, 29.344675),
])
pocket8 = body.newObject("PartDesign::Pocket", "Pocket007")
pocket8.Profile = sketch10
pocket8.Length = 15
pocket8.Reversed = True

sketch11 = body.newObject("Sketcher::SketchObject", "Sketch010")
sketch11.AttachmentSupport = (doc.getObject("XY_Plane"), [""])
sketch11.MapMode = "FlatFace"
sketch11.AttachmentOffset = App.Placement(App.Vector(0, 0, 25), App.Rotation())
sketch11.addGeometry([
    Part.LineSegment(App.Vector(-64.8, 30.3, 0), App.Vector(-64.8, 56.4, 0)),
    Part.LineSegment(App.Vector(-64.8, 56.4, 0), App.Vector(-14.1, 56.4, 0)),
    Part.LineSegment(App.Vector(-14.1, 56.4, 0), App.Vector(-14.1, 30.3, 0)),
    Part.LineSegment(App.Vector(-14.1, 30.3, 0), App.Vector(-13.1, 30.3, 0)),
    Part.LineSegment(App.Vector(-13.1, 30.3, 0), App.Vector(-13.1, 57.4, 0)),
    Part.LineSegment(App.Vector(-13.1, 57.4, 0), App.Vector(-65.8, 57.4, 0)),
    Part.LineSegment(App.Vector(-65.8, 57.4, 0), App.Vector(-65.8, 30.3, 0)),
    Part.LineSegment(App.Vector(-65.8, 30.3, 0), App.Vector(-64.8, 30.3, 0)),
], False)
sketch11.addConstraint([
    Sketcher.Constraint("Coincident", 0, 2, 1, 1),
    Sketcher.Constraint("Coincident", 1, 2, 2, 1),
    Sketcher.Constraint("Coincident", 2, 2, 3, 1),
    Sketcher.Constraint("Coincident", 3, 2, 4, 1),
    Sketcher.Constraint("Coincident", 4, 2, 5, 1),
    Sketcher.Constraint("Coincident", 5, 2, 6, 1),
    Sketcher.Constraint("Coincident", 6, 2, 7, 1),
    Sketcher.Constraint("Coincident", 7, 2, 0, 1),
    Sketcher.Constraint("Vertical", 0),
    Sketcher.Constraint("Horizontal", 1),
    Sketcher.Constraint("Vertical", 2),
    Sketcher.Constraint("Horizontal", 3),
    Sketcher.Constraint("Vertical", 4),
    Sketcher.Constraint("Horizontal", 5),
    Sketcher.Constraint("Vertical", 6),
    Sketcher.Constraint("Horizontal", 7),
    Sketcher.Constraint("Horizontal", 3, 2, 6, 2),
    Sketcher.Constraint("Equal", 3, 7),
    Sketcher.Constraint("DistanceX", 3, 1, 3, 2, 1.0),
    Sketcher.Constraint("DistanceY", 1, 2, 4, 2, 1.0),
    Sketcher.Constraint("DistanceX", 1, 1, 1, 2, 50.75),
    Sketcher.Constraint("DistanceY", 0, 1, 0, 2, 26.069454),
    Sketcher.Constraint("DistanceY", -1, 1, 0, 2, 56.414129),
    Sketcher.Constraint("DistanceX", 0, 2, -1, 1, 64.805558),
])
pad3 = body.newObject("PartDesign::Pad", "Pad002")
pad3.Profile = sketch11
pad3.Length = 15.3
pad3.Reversed = True

sketch12 = body.newObject("Sketcher::SketchObject", "Sketch011")
sketch12.AttachmentSupport = (doc.getObject("XZ_Plane"), [""])
sketch12.MapMode = "FlatFace"
sketch12.AttachmentOffset = App.Placement(App.Vector(0, 0, -57.414129), App.Rotation())
sketch12.addGeometry([
    Part.Circle(App.Vector(-60.3, 17.4, 0), App.Vector(0, 0, 1), 4),
    Part.Circle(App.Vector(-49.3, 17.4, 0), App.Vector(0, 0, 1), 4),
    Part.Circle(App.Vector(-37.3, 17.4, 0), App.Vector(0, 0, 1), 4.8),
    Part.Circle(App.Vector(-25.3, 17.4, 0), App.Vector(0, 0, 1), 4),
], False)
sketch12.addConstraint([
    Sketcher.Constraint("Equal", 0, 1),
    Sketcher.Constraint("Equal", 1, 3),
    Sketcher.Constraint("Horizontal", 0, 3, 1, 3),
    Sketcher.Constraint("Horizontal", 1, 3, 2, 3),
    Sketcher.Constraint("Horizontal", 2, 3, 3, 3),
    Sketcher.Constraint("Diameter", 0, 8.0),
    Sketcher.Constraint("Diameter", 2, 9.5),
    Sketcher.Constraint("DistanceX", 0, 3, 1, 3, 11.0),
    Sketcher.Constraint("DistanceX", 1, 3, 2, 3, 12.0),
    Sketcher.Constraint("DistanceX", 2, 3, 3, 3, 12.0),
    Sketcher.Constraint("DistanceY", -1, 1, 0, 3, 17.35),
    Sketcher.Constraint("DistanceX", 0, 3, -1, 1, 60.305558),
])
pocket9 = body.newObject("PartDesign::Pocket", "Pocket008")
pocket9.Profile = sketch12
pocket9.Length = 1
pocket9.Reversed = True

doc.recompute()
